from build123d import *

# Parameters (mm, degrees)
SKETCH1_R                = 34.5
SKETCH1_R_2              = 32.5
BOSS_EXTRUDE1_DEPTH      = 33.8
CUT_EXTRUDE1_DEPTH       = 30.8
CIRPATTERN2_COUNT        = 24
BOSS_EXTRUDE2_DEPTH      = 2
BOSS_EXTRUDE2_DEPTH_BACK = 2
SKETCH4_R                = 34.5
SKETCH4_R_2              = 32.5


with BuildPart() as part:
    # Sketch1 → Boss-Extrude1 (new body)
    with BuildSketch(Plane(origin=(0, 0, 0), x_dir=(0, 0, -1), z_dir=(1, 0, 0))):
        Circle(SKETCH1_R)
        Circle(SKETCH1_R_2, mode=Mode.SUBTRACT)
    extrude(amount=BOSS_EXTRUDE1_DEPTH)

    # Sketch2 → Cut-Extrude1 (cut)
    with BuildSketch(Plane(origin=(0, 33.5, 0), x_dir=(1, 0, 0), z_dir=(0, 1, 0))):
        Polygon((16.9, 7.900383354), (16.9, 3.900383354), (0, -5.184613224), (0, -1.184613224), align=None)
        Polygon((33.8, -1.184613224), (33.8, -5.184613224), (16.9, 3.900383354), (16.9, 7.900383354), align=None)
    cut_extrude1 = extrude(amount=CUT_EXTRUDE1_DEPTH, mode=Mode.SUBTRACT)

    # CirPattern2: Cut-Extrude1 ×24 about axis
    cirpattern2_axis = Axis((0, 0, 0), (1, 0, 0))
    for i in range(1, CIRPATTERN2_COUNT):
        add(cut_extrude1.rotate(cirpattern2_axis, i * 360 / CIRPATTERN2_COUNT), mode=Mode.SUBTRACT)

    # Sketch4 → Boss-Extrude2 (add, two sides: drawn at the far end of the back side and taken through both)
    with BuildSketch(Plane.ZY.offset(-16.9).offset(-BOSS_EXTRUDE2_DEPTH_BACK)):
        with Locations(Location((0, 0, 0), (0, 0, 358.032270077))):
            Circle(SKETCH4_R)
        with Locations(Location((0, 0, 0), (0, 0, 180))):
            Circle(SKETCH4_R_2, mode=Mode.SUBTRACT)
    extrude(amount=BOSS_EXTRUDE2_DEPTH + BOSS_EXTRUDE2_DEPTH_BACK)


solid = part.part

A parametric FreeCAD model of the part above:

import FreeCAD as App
import Part
import Sketcher
Q = App.Units.Quantity

doc = App.newDocument("Part")
body = doc.addObject("PartDesign::Body", "Body")

# Sketch on YZ plane
sketch1 = body.newObject("Sketcher::SketchObject", "Sketch")
sketch1.AttachmentSupport = (doc.getObject("YZ_Plane"), [""])
sketch1.MapMode = "FlatFace"
sketch1.addGeometry([
    Part.Circle(App.Vector(0, 0, 0), App.Vector(0, 0, 1), 34),
    Part.Circle(App.Vector(0, 0, 0), App.Vector(0, 0, 1), 32),
], False)
sketch1.addConstraint([
    Sketcher.Constraint("Coincident", 0, 3, -1, 1),
    Sketcher.Constraint("Coincident", 1, 3, -1, 1),
    Sketcher.Constraint("Diameter", 0, Q("69 mm")),
    Sketcher.Constraint("Diameter", 1, Q("65 mm")),
])
pad1 = body.newObject("PartDesign::Pad", "Pad")
pad1.Profile = sketch1
pad1.Length = 33.8

# Sketch on XZ plane
sketch2 = body.newObject("Sketcher::SketchObject", "Sketch001")
sketch2.AttachmentSupport = (doc.getObject("XZ_Plane"), [""])
sketch2.MapMode = "FlatFace"
sketch2.AttachmentOffset = App.Placement(App.Vector(0, 0, -33.5), App.Rotation())
sketch2.addGeometry([
    Part.LineSegment(App.Vector(0, 5.2, 0), App.Vector(16.9, -3.9, 0)),  # 0
    Part.LineSegment(App.Vector(16.9, -3.9, 0), App.Vector(33.8, 5.2, 0)),  # 1
    Part.LineSegment(App.Vector(33.8, 5.2, 0), App.Vector(33.8, 1.2, 0)),  # 2
    Part.LineSegment(App.Vector(33.8, 1.2, 0), App.Vector(16.9, -7.9, 0)),  # 3
    Part.LineSegment(App.Vector(16.9, -7.9, 0), App.Vector(0, 1.2, 0)),  # 4
    Part.LineSegment(App.Vector(0, 1.2, 0), App.Vector(0, 5.2, 0)),  # 5
], False)
sketch2.addConstraint([
    Sketcher.Constraint("Coincident", 0, 2, 1, 1),
    Sketcher.Constraint("Coincident", 1, 2, 2, 1),
    Sketcher.Constraint("Coincident", 2, 2, 3, 1),
    Sketcher.Constraint("Coincident", 3, 2, 4, 1),
    Sketcher.Constraint("Coincident", 4, 2, 5, 1),
    Sketcher.Constraint("Coincident", 5, 2, 0, 1),
    Sketcher.Constraint("Vertical", 2),
    Sketcher.Constraint("Vertical", 5),
    Sketcher.Constraint("PointOnObject", 4, 2, -2),
    Sketcher.Constraint("Parallel", 1, 3),
    Sketcher.Constraint("Parallel", 0, 4),
    Sketcher.Constraint("Horizontal", 2, 2, 4, 2),
    Sketcher.Constraint("Horizontal", 1, 2, 5, 2),
    Sketcher.Constraint("Equal", 0, 1),
    Sketcher.Constraint("DistanceY", 2, 2, 2, 1, Q("4 mm")),
    Sketcher.Constraint("DistanceX", -1, 1, 0, 2, Q("16.9 mm")),
    Sketcher.Constraint("Distance", 0, Q("19.187161 mm")),
    Sketcher.Constraint("DistanceY", 0, 2, -1, 1, Q("3.900383 mm")),
])
pocket1 = body.newObject("PartDesign::Pocket", "Pocket")
pocket1.Profile = sketch2
pocket1.Length = 30.8
doc.recompute()

polarpattern = body.newObject("PartDesign::PolarPattern", "PolarPattern")
polarpattern.Originals = [pocket1]
polarpattern.Axis = (doc.getObject("X_Axis"), [""])
polarpattern.Angle = 360
polarpattern.Occurrences = 24
body.Tip = polarpattern

# Sketch on YZ plane
sketch3 = body.newObject("Sketcher::SketchObject", "Sketch002")
sketch3.AttachmentSupport = (doc.getObject("YZ_Plane"), [""])
sketch3.MapMode = "FlatFace"
sketch3.AttachmentOffset = App.Placement(App.Vector(0, 0, 16.9), App.Rotation())
sketch3.addGeometry([
    Part.Circle(App.Vector(0, 0, 0), App.Vector(0, 0, 1), 34),
    Part.Circle(App.Vector(0, 0, 0), App.Vector(0, 0, 1), 32),
], False)
sketch3.addConstraint([
    Sketcher.Constraint("Coincident", 0, 3, -1, 1),
    Sketcher.Constraint("Coincident", 1, 3, -1, 1),
    Sketcher.Constraint("Diameter", 0, Q("69 mm")),
    Sketcher.Constraint("Diameter", 1, Q("65 mm")),
])
pad2 = body.newObject("PartDesign::Pad", "Pad001")
pad2.Profile = sketch3
pad2.Type = "TwoLengths"
pad2.Length = 2
pad2.Length2 = 2
pad2.Reversed = True

doc.recompute()
